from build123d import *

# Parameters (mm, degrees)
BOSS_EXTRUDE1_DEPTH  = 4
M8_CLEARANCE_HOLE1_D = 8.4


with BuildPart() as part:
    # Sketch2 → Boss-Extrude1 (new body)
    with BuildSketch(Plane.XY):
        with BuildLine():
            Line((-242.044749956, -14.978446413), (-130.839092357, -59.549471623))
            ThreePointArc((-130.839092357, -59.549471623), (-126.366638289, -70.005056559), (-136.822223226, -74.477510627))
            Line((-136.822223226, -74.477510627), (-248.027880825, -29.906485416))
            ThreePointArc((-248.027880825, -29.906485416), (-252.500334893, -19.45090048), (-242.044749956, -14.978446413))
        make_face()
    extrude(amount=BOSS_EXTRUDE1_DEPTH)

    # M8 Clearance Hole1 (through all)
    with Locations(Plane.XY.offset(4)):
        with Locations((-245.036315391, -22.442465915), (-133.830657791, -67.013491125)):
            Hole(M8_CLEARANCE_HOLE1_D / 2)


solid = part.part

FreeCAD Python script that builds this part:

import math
import FreeCAD as App
import Part
import Sketcher

doc = App.newDocument("Part")
body = doc.addObject("PartDesign::Body", "Body")

# Sketch on XY plane
sketch1 = doc.addObject("Sketcher::SketchObject", "Sketch")
body.addObject(sketch1)
sketch1.AttachmentSupport = (doc.XY_Plane, [""])
sketch1.MapMode = "FlatFace"
sketch1.addGeometry(Part.LineSegment(App.Vector(-131, -60, 0), App.Vector(-242, -15, 0)), False)
sketch1.addGeometry(Part.ArcOfCircle(Part.Circle(App.Vector(-245, -22, 0), App.Vector(0, 0, 1), 8), math.radians(68), math.radians(248)), False)
sketch1.addGeometry(Part.LineSegment(App.Vector(-248, -30, 0), App.Vector(-137, -74, 0)), False)
sketch1.addGeometry(Part.ArcOfCircle(Part.Circle(App.Vector(-134, -67, 0), App.Vector(0, 0, 1), 8), math.radians(-112), math.radians(68)), False)
sketch1.addConstraint(Sketcher.Constraint("Tangent", 0, 2, 1, 1))
sketch1.addConstraint(Sketcher.Constraint("Tangent", 1, 2, 2, 1))
sketch1.addConstraint(Sketcher.Constraint("Tangent", 2, 2, 3, 1))
sketch1.addConstraint(Sketcher.Constraint("Tangent", 3, 2, 0, 1))
sketch1.addConstraint(Sketcher.Constraint("Equal", 1, 3))
sketch1.addConstraint(Sketcher.Constraint("Radius", 1, 8.04121))
sketch1.addConstraint(Sketcher.Constraint("DistanceY", 3, 3, -1, 1, 67.013491))
sketch1.addConstraint(Sketcher.Constraint("DistanceX", 0, 2, -1, 1, 242.04475))
sketch1.addConstraint(Sketcher.Constraint("DistanceX", 1, 2, -1, 1, 248.027881))
sketch1.addConstraint(Sketcher.Constraint("DistanceX", 1, 2, 3, 2, 117.188788))
pad1 = doc.addObject("PartDesign::Pad", "Pad")
body.addObject(pad1)
pad1.Profile = sketch1
pad1.Length = 4

# Sketch on XY plane
sketch2 = doc.addObject("Sketcher::SketchObject", "Sketch001")
body.addObject(sketch2)
sketch2.AttachmentSupport = (doc.XY_Plane, [""])
sketch2.MapMode = "FlatFace"
sketch2.AttachmentOffset = App.Placement(App.Vector(0, 0, 4), App.Rotation())
sketch2.addGeometry(Part.Circle(App.Vector(-245, -22.4, 0), App.Vector(0, 0, 1), 4.2), False)
sketch2.addGeometry(Part.Circle(App.Vector(-133.8, -67, 0), App.Vector(0, 0, 1), 4.2), False)
sketch2.addConstraint(Sketcher.Constraint("Equal", 0, 1))
sketch2.addConstraint(Sketcher.Constraint("Diameter", 0, 8.4))
sketch2.addConstraint(Sketcher.Constraint("DistanceY", 1, 3, -1, 1, 67.013491))
sketch2.addConstraint(Sketcher.Constraint("DistanceX", 0, 3, -1, 1, 245.036315))
sketch2.addConstraint(Sketcher.Constraint("DistanceY", 0, 3, -1, 1, 22.442466))
sketch2.addConstraint(Sketcher.Constraint("DistanceX", 1, 3, -1, 1, 133.830658))
doc.recompute()
hole = doc.addObject("PartDesign::Hole", "Hole")
body.addObject(hole)
hole.Profile = sketch2
hole.ThreadType = "None"
hole.Diameter = 8.4
hole.DepthType = "ThroughAll"

doc.recompute()
